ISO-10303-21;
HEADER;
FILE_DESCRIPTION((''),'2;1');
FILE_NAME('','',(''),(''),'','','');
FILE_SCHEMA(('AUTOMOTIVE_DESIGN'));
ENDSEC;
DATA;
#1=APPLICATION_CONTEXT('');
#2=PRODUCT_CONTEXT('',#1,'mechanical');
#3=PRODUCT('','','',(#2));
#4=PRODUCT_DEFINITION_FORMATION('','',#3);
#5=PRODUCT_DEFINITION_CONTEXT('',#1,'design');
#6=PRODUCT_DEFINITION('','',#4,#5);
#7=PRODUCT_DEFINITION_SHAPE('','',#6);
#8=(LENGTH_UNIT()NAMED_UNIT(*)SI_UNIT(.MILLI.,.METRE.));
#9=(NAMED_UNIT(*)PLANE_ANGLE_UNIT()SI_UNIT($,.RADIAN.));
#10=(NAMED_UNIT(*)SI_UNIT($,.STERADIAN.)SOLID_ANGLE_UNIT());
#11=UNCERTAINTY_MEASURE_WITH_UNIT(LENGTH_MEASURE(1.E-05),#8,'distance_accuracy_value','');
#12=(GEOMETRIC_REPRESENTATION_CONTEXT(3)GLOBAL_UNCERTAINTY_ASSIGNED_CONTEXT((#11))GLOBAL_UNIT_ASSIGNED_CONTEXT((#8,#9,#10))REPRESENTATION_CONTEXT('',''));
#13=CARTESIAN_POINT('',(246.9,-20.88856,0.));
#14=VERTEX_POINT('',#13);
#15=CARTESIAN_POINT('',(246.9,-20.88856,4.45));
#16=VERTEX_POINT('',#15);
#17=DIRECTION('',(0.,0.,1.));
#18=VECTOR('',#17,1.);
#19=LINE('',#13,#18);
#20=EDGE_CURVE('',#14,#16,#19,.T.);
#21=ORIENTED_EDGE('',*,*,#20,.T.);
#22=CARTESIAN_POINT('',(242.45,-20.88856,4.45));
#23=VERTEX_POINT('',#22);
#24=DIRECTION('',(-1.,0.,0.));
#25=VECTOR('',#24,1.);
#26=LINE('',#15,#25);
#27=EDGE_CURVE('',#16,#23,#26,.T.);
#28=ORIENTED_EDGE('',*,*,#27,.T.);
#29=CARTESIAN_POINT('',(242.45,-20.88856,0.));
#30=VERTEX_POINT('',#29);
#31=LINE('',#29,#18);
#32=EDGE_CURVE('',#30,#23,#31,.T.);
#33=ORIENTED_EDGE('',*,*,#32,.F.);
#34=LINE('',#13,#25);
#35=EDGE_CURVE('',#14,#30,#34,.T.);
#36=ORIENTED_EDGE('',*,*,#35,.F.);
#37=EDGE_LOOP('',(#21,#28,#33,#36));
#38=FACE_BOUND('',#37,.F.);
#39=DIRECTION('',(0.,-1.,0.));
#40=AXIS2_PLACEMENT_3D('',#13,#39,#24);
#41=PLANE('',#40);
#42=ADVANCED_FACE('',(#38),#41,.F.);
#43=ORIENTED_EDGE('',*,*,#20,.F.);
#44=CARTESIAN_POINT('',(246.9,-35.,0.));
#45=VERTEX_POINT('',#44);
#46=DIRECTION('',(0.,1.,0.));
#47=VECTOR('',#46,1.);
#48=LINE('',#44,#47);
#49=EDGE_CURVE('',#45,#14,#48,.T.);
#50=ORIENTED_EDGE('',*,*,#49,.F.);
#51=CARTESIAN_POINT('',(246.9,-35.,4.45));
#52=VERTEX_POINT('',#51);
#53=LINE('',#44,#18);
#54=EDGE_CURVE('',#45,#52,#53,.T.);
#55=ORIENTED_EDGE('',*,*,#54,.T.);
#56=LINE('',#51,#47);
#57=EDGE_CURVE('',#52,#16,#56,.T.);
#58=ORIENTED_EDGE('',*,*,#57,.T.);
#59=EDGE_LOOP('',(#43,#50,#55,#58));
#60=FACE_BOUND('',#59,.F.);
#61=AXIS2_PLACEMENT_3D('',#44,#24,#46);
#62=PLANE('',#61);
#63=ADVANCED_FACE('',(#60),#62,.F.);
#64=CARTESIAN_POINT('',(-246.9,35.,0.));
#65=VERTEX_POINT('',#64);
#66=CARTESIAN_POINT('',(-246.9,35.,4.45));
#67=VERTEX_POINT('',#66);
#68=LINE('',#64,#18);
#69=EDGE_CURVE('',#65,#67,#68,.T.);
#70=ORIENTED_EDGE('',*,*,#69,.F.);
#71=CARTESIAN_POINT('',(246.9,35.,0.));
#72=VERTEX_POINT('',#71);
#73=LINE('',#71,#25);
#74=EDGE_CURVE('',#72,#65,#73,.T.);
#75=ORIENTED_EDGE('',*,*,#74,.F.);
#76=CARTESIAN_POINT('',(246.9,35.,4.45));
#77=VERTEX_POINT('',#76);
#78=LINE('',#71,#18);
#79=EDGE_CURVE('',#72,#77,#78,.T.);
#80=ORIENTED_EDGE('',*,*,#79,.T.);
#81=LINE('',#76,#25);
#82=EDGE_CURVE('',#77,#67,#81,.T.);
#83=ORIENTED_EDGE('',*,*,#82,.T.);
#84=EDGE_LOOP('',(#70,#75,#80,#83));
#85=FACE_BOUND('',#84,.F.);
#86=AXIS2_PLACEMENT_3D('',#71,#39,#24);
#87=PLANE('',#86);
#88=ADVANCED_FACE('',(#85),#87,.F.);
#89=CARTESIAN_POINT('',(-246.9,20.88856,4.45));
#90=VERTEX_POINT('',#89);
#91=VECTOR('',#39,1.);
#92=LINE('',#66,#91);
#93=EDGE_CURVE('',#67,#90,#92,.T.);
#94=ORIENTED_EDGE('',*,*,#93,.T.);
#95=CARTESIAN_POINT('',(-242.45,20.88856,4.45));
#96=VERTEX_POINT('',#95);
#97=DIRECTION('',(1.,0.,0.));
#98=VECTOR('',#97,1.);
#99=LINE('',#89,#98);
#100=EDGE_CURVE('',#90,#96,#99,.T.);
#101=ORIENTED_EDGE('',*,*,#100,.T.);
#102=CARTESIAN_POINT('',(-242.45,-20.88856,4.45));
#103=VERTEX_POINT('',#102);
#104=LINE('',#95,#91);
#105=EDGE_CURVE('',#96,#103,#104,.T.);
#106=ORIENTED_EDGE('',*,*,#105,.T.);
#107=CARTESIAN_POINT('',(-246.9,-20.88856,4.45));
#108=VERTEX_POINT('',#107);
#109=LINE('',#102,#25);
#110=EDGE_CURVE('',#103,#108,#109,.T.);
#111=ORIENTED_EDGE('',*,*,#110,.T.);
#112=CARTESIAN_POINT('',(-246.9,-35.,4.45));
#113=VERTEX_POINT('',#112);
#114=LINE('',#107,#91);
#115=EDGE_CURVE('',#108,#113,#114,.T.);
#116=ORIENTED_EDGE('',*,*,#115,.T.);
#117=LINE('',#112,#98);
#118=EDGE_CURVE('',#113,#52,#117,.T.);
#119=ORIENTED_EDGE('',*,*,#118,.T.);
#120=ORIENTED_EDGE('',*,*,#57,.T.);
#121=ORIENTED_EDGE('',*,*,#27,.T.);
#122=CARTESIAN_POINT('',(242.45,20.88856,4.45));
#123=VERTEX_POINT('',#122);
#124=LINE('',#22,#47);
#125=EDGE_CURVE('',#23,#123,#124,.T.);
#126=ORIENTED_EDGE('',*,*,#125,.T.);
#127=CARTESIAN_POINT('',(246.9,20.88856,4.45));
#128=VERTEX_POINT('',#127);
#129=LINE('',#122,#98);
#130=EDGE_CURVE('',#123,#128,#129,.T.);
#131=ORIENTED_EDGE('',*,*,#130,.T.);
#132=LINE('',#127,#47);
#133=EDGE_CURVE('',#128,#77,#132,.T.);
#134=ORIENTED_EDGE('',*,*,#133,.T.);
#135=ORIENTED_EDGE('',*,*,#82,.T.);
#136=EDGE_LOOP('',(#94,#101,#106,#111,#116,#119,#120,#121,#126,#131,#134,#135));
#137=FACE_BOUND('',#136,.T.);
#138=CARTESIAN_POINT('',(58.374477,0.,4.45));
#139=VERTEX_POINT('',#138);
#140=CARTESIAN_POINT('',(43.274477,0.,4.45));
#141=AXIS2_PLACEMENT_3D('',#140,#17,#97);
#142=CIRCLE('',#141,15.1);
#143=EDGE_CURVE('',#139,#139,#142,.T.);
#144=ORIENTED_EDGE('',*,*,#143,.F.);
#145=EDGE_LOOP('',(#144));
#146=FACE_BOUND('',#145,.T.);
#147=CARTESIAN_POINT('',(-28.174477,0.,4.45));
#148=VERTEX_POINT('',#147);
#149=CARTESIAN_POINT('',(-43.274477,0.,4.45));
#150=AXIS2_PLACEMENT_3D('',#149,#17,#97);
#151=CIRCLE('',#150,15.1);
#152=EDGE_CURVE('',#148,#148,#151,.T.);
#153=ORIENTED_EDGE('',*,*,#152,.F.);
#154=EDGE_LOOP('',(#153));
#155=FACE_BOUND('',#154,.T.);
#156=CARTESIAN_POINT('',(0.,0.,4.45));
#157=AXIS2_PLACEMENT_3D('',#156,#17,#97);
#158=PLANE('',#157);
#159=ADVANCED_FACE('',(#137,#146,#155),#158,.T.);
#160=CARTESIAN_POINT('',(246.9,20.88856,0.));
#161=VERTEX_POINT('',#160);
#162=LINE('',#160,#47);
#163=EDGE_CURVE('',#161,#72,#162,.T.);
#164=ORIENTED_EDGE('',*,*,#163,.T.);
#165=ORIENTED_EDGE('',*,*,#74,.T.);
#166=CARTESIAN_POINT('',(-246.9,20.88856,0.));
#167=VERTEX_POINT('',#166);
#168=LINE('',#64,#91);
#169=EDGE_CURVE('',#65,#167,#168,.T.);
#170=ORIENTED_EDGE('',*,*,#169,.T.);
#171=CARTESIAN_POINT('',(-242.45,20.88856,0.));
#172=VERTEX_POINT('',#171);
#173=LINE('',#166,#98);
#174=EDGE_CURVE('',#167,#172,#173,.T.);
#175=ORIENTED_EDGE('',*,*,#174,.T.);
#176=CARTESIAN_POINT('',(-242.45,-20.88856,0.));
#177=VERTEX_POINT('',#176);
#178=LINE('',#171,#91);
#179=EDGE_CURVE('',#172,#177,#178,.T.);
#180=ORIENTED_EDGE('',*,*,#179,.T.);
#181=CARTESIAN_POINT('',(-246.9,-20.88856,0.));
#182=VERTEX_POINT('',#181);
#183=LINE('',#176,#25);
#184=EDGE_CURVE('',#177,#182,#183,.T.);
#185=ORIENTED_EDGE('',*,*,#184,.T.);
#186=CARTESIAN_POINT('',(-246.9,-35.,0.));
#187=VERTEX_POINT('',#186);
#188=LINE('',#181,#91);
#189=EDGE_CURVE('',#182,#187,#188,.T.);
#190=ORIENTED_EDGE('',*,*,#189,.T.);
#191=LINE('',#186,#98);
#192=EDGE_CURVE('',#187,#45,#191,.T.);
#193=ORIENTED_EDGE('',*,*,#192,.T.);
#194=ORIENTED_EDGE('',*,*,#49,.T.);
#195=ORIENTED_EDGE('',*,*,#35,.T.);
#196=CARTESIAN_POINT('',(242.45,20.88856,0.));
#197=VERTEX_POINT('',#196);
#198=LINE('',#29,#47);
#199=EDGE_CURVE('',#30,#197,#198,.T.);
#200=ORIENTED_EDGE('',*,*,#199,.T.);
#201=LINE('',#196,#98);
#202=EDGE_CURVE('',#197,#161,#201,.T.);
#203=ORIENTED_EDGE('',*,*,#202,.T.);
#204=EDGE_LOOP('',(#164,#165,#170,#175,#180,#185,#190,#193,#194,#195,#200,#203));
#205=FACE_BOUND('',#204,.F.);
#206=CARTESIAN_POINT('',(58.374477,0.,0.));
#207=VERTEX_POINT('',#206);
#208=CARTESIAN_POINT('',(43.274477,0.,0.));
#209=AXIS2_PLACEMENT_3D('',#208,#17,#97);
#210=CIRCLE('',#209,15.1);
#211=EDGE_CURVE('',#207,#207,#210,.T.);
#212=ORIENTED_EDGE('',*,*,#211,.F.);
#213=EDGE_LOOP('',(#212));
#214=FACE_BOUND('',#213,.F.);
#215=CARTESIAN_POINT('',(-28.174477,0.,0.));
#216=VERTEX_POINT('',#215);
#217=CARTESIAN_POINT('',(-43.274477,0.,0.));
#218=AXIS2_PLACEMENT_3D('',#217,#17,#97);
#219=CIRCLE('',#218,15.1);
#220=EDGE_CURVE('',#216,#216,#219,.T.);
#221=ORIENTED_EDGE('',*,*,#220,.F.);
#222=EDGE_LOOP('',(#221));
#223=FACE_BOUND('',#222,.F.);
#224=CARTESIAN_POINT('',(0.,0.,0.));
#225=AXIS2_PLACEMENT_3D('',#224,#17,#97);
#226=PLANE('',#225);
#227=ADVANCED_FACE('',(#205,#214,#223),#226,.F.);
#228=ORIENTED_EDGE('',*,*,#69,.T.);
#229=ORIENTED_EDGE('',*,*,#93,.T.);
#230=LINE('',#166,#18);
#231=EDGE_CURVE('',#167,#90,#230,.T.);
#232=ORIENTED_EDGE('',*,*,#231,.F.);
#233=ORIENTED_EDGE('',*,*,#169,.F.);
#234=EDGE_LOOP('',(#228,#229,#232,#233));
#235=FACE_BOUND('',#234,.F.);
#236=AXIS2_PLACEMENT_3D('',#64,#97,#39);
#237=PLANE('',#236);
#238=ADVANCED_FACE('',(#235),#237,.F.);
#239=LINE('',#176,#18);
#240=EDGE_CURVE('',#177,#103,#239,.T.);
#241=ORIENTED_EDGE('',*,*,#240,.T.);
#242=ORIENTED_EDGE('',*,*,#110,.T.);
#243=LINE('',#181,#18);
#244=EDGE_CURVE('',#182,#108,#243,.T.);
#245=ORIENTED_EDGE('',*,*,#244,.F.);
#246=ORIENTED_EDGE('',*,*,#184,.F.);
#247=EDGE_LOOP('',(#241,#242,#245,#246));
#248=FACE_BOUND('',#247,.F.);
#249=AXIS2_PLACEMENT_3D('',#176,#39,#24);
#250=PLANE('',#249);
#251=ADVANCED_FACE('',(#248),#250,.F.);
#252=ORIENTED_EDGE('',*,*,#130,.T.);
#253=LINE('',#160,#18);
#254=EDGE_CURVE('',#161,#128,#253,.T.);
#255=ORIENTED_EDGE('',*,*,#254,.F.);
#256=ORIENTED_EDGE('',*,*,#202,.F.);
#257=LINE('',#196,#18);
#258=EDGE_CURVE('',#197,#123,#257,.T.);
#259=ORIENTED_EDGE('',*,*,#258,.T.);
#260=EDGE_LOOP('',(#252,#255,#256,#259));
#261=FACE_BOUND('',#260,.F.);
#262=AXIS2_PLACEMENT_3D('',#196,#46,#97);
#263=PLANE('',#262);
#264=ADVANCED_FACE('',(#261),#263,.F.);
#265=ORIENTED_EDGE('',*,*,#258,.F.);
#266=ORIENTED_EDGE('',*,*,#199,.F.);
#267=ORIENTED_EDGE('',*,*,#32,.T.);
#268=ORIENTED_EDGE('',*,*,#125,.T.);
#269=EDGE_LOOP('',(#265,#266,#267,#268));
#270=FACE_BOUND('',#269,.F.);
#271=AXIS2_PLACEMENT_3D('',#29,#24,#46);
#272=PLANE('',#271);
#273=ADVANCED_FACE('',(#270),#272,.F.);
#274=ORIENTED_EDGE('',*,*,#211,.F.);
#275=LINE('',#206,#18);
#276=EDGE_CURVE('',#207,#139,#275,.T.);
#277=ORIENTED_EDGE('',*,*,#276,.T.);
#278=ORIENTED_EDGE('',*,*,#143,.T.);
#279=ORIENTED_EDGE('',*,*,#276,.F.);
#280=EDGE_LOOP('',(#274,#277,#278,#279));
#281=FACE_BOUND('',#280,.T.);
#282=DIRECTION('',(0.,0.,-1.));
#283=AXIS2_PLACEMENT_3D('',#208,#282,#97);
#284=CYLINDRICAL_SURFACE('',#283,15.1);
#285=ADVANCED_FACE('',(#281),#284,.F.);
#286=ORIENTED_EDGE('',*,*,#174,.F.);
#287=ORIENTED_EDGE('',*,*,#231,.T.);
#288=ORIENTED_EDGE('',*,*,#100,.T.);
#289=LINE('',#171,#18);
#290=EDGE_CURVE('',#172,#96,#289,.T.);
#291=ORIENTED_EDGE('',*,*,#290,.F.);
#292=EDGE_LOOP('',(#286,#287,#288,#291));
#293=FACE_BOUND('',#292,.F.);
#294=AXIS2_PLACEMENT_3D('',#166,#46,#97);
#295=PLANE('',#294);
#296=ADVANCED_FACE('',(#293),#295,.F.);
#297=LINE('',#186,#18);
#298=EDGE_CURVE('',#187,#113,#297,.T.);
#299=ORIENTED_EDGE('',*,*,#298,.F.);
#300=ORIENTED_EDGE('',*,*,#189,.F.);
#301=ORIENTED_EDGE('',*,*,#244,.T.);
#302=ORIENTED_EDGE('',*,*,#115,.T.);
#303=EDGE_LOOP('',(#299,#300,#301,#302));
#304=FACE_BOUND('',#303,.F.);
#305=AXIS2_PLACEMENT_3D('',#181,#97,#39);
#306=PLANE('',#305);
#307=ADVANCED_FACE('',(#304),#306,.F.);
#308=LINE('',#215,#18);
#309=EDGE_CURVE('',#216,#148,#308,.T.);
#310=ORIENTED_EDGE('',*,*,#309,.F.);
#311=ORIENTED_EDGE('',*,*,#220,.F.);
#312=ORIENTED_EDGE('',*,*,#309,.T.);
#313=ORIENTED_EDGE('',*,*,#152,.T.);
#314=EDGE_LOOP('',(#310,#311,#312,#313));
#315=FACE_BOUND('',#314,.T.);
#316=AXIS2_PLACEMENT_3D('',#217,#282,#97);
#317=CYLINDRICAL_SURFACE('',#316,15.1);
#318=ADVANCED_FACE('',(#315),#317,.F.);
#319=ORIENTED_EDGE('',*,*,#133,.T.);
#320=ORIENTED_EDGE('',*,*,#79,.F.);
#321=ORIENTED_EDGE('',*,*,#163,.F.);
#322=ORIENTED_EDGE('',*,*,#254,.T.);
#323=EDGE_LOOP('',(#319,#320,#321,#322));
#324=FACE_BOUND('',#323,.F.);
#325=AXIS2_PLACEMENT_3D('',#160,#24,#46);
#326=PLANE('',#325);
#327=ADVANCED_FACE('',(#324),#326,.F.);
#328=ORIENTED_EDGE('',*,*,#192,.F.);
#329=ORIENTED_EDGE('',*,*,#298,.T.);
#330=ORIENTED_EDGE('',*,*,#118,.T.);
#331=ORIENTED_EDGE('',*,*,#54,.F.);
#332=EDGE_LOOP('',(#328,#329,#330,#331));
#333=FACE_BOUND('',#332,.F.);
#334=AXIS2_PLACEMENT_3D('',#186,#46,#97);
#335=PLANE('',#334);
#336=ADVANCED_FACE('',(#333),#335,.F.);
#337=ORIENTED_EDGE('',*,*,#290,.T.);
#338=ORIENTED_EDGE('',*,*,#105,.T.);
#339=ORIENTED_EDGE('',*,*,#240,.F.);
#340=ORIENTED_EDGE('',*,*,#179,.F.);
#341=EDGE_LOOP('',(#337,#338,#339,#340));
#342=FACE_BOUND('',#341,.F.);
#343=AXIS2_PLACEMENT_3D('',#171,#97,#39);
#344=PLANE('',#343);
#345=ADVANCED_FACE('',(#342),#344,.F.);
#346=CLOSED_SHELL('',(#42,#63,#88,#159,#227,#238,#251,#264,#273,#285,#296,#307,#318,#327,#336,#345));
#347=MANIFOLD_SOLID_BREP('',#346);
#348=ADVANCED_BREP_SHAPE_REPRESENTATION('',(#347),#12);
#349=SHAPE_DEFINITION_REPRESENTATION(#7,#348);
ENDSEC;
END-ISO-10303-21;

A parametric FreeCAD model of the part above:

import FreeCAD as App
import Part
import Sketcher
Q = App.Units.Quantity

doc = App.newDocument("Part")
params = doc.addObject("Spreadsheet::Sheet", "Params")
for row, (alias, value) in enumerate([
    ("sketch1_diameter", "30.2 mm"),
    ("sketch1_width", "493.8 mm"),
    ("sketch1_width2", "4.45 mm"),
    ("pad1_length", "4.45 mm"),
], start=1):
    params.set(f"A{row}", alias)
    params.set(f"B{row}", "=" + value)
    params.setAlias(f"B{row}", alias)

body = doc.addObject("PartDesign::Body", "Body")

sketch1 = doc.addObject("Sketcher::SketchObject", "Sketch")
body.addObject(sketch1)
sketch1.AttachmentSupport = (doc.XY_Plane, [""])
sketch1.MapMode = "FlatFace"
sketch1.addGeometry([
    Part.LineSegment(App.Vector(246.9, -35, 0), App.Vector(246.9, -20.88856, 0)),
    Part.LineSegment(App.Vector(246.9, -20.88856, 0), App.Vector(242.45, -20.88856, 0)),
    Part.LineSegment(App.Vector(242.45, -20.88856, 0), App.Vector(242.45, 20.88856, 0)),
    Part.LineSegment(App.Vector(242.45, 20.88856, 0), App.Vector(246.9, 20.88856, 0)),
    Part.LineSegment(App.Vector(246.9, 20.88856, 0), App.Vector(246.9, 35, 0)),
    Part.LineSegment(App.Vector(246.9, 35, 0), App.Vector(-246.9, 35, 0)),
    Part.LineSegment(App.Vector(-246.9, 35, 0), App.Vector(-246.9, 20.88856, 0)),
    Part.LineSegment(App.Vector(-246.9, 20.88856, 0), App.Vector(-242.45, 20.88856, 0)),
    Part.LineSegment(App.Vector(-242.45, 20.88856, 0), App.Vector(-242.45, -20.88856, 0)),
    Part.LineSegment(App.Vector(-242.45, -20.88856, 0), App.Vector(-246.9, -20.88856, 0)),
    Part.LineSegment(App.Vector(-246.9, -20.88856, 0), App.Vector(-246.9, -35, 0)),
    Part.LineSegment(App.Vector(-246.9, -35, 0), App.Vector(246.9, -35, 0)),
    Part.Circle(App.Vector(-43.274477, 0, 0), App.Vector(0, 0, 1), 15.1),
    Part.Circle(App.Vector(43.274477, 0, 0), App.Vector(0, 0, 1), 15.1),
], False)
sketch1.addConstraint([
    Sketcher.Constraint("Coincident", 0, 2, 1, 1),
    Sketcher.Constraint("Coincident", 1, 2, 2, 1),
    Sketcher.Constraint("Coincident", 2, 2, 3, 1),
    Sketcher.Constraint("Coincident", 3, 2, 4, 1),
    Sketcher.Constraint("Coincident", 4, 2, 5, 1),
    Sketcher.Constraint("Coincident", 5, 2, 6, 1),
    Sketcher.Constraint("Coincident", 6, 2, 7, 1),
    Sketcher.Constraint("Coincident", 7, 2, 8, 1),
    Sketcher.Constraint("Coincident", 8, 2, 9, 1),
    Sketcher.Constraint("Coincident", 9, 2, 10, 1),
    Sketcher.Constraint("Coincident", 10, 2, 11, 1),
    Sketcher.Constraint("Coincident", 11, 2, 0, 1),
    Sketcher.Constraint("Vertical", 0),
    Sketcher.Constraint("Horizontal", 1),
    Sketcher.Constraint("Vertical", 2),
    Sketcher.Constraint("Horizontal", 3),
    Sketcher.Constraint("Vertical", 4),
    Sketcher.Constraint("Horizontal", 5),
    Sketcher.Constraint("Vertical", 6),
    Sketcher.Constraint("Horizontal", 7),
    Sketcher.Constraint("Vertical", 8),
    Sketcher.Constraint("Horizontal", 9),
    Sketcher.Constraint("Vertical", 10),
    Sketcher.Constraint("Horizontal", 11),
    Sketcher.Constraint("Equal", 12, 13),
    Sketcher.Constraint("Symmetric", 12, 3, 13, 3, -1, 1),
    Sketcher.Constraint("Symmetric", 0, 2, 6, 2, -1, 1),
    Sketcher.Constraint("Symmetric", 2, 2, 8, 2, -1, 1),
    Sketcher.Constraint("Symmetric", 4, 2, 10, 2, -1, 1),
    Sketcher.Constraint("Symmetric", 3, 2, 6, 2, -2),
    Sketcher.Constraint("PointOnObject", 12, 3, -1),
    Sketcher.Constraint("Diameter", 12, Q("30.2 mm")),
    Sketcher.Constraint("DistanceX", 5, 2, 5, 1, Q("493.8 mm")),
    Sketcher.Constraint("DistanceY", -1, 1, 4, 2, Q("35 mm")),
    Sketcher.Constraint("DistanceX", 1, 2, 1, 1, Q("4.45 mm")),
    Sketcher.Constraint("DistanceY", 0, 1, 0, 2, Q("14.11144 mm")),
    Sketcher.Constraint("DistanceX", 12, 3, -1, 1, Q("43.274477 mm")),
])
sketch1.setExpression("Constraints[31]", "Params.sketch1_diameter")
sketch1.setExpression("Constraints[32]", "Params.sketch1_width")
sketch1.setExpression("Constraints[34]", "Params.sketch1_width2")
pad1 = doc.addObject("PartDesign::Pad", "Pad")
body.addObject(pad1)
pad1.Profile = sketch1
pad1.setExpression("Length", "Params.pad1_length")

doc.recompute()
